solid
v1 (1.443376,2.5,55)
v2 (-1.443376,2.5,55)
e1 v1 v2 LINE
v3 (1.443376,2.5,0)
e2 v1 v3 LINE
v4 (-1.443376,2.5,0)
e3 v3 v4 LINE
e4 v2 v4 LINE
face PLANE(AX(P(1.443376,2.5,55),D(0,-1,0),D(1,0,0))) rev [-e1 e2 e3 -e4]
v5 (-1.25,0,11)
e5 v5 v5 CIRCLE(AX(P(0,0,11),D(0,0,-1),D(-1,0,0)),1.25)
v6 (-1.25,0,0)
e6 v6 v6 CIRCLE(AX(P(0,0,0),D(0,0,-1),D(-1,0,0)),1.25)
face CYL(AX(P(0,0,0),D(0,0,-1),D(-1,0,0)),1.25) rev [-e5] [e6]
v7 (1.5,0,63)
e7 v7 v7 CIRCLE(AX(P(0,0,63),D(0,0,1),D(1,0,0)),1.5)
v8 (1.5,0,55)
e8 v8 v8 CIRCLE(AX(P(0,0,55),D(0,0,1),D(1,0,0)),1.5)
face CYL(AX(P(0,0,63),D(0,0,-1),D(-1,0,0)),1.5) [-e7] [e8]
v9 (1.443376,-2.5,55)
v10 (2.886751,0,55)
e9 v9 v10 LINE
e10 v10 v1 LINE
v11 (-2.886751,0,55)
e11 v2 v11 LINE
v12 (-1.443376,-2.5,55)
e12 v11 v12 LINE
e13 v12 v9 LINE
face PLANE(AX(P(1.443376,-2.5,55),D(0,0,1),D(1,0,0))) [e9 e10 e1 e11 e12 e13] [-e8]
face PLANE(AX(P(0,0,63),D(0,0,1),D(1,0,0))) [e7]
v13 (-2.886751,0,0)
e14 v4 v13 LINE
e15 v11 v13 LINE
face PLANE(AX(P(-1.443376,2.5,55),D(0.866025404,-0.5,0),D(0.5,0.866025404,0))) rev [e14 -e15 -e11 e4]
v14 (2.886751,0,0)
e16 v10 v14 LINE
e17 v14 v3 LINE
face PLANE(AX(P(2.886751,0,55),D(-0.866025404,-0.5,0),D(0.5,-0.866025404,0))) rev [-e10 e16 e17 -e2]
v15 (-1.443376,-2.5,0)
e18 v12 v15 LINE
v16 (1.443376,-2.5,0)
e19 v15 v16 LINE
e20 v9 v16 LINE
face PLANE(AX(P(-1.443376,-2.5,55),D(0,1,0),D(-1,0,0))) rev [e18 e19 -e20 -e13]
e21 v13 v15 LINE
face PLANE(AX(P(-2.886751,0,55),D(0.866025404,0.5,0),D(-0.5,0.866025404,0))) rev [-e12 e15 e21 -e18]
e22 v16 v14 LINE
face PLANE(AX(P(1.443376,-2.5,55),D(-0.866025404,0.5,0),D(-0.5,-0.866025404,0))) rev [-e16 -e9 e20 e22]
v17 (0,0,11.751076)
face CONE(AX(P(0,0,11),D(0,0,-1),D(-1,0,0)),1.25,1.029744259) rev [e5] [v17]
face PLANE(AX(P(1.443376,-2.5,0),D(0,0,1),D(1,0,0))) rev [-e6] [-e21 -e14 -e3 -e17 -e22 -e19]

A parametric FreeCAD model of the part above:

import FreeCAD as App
import Part
import Sketcher
Q = App.Units.Quantity

doc = App.newDocument("Part")
body = doc.addObject("PartDesign::Body", "Body")

sketch1 = body.newObject("Sketcher::SketchObject", "Sketch")
sketch1.AttachmentSupport = (doc.getObject("XY_Plane"), [""])
sketch1.MapMode = "FlatFace"
sketch1.addGeometry(Part.LineSegment(App.Vector(1.443376, -2.5, 0), App.Vector(2.886751, 0, 0)), False)
sketch1.addGeometry(Part.LineSegment(App.Vector(2.886751, 0, 0), App.Vector(1.443376, 2.5, 0)), False)
sketch1.addGeometry(Part.LineSegment(App.Vector(1.443376, 2.5, 0), App.Vector(-1.443376, 2.5, 0)), False)
sketch1.addGeometry(Part.LineSegment(App.Vector(-1.443376, 2.5, 0), App.Vector(-2.886751, 0, 0)), False)
sketch1.addGeometry(Part.LineSegment(App.Vector(-2.886751, 0, 0), App.Vector(-1.443376, -2.5, 0)), False)
sketch1.addGeometry(Part.LineSegment(App.Vector(-1.443376, -2.5, 0), App.Vector(1.443376, -2.5, 0)), False)
sketch1.addConstraint(Sketcher.Constraint("Coincident", 0, 2, 1, 1))
sketch1.addConstraint(Sketcher.Constraint("Coincident", 1, 2, 2, 1))
sketch1.addConstraint(Sketcher.Constraint("Coincident", 2, 2, 3, 1))
sketch1.addConstraint(Sketcher.Constraint("Coincident", 3, 2, 4, 1))
sketch1.addConstraint(Sketcher.Constraint("Coincident", 4, 2, 5, 1))
sketch1.addConstraint(Sketcher.Constraint("Coincident", 5, 2, 0, 1))
sketch1.addConstraint(Sketcher.Constraint("Horizontal", 2))
sketch1.addConstraint(Sketcher.Constraint("Horizontal", 5))
sketch1.addConstraint(Sketcher.Constraint("Symmetric", 0, 2, 3, 2, -1, 1))
sketch1.addConstraint(Sketcher.Constraint("Symmetric", 1, 2, 4, 2, -1, 1))
sketch1.addConstraint(Sketcher.Constraint("PointOnObject", 0, 2, -1))
sketch1.addConstraint(Sketcher.Constraint("Parallel", 0, 3))
sketch1.addConstraint(Sketcher.Constraint("Vertical", 2, 2, 4, 2))
sketch1.addConstraint(Sketcher.Constraint("Angle", 0, Q("60 deg")))
sketch1.addConstraint(Sketcher.Constraint("DistanceY", 4, 2, 2, 2, Q("5 mm")))
sketch1.addConstraint(Sketcher.Constraint("DistanceX", 2, 2, 2, 1, Q("2.886751 mm")))
pad1 = body.newObject("PartDesign::Pad", "Pad")
pad1.Profile = sketch1
pad1.Length = 55

sketch2 = body.newObject("Sketcher::SketchObject", "Sketch001")
sketch2.AttachmentSupport = (doc.getObject("XY_Plane"), [""])
sketch2.MapMode = "FlatFace"
sketch2.AttachmentOffset = App.Placement(App.Vector(0, 0, 55), App.Rotation())
sketch2.addGeometry(Part.Circle(App.Vector(0, 0, 0), App.Vector(0, 0, 1), 1.5), False)
sketch2.addConstraint(Sketcher.Constraint("Coincident", 0, 3, -1, 1))
sketch2.addConstraint(Sketcher.Constraint("Diameter", 0, Q("3 mm")))
pad2 = body.newObject("PartDesign::Pad", "Pad001")
pad2.Profile = sketch2
pad2.Length = 8

sketch3 = body.newObject("Sketcher::SketchObject", "Sketch002")
sketch3.AttachmentSupport = (doc.getObject("XY_Plane"), [""])
sketch3.MapMode = "FlatFace"
sketch3.addGeometry(Part.Circle(App.Vector(0, 0, 0), App.Vector(0, 0, 1), 1.25), False)
sketch3.addConstraint(Sketcher.Constraint("Coincident", 0, 3, -1, 1))
sketch3.addConstraint(Sketcher.Constraint("Diameter", 0, Q("2.5 mm")))
doc.recompute()
hole = body.newObject("PartDesign::Hole", "Hole")
hole.Profile = sketch3
hole.ThreadType = "None"
hole.Diameter = 2.5
hole.DepthType = "Dimension"
hole.Depth = 11
hole.DrillPoint = "Angled"
hole.DrillPointAngle = 118
hole.Reversed = True

doc.recompute()
